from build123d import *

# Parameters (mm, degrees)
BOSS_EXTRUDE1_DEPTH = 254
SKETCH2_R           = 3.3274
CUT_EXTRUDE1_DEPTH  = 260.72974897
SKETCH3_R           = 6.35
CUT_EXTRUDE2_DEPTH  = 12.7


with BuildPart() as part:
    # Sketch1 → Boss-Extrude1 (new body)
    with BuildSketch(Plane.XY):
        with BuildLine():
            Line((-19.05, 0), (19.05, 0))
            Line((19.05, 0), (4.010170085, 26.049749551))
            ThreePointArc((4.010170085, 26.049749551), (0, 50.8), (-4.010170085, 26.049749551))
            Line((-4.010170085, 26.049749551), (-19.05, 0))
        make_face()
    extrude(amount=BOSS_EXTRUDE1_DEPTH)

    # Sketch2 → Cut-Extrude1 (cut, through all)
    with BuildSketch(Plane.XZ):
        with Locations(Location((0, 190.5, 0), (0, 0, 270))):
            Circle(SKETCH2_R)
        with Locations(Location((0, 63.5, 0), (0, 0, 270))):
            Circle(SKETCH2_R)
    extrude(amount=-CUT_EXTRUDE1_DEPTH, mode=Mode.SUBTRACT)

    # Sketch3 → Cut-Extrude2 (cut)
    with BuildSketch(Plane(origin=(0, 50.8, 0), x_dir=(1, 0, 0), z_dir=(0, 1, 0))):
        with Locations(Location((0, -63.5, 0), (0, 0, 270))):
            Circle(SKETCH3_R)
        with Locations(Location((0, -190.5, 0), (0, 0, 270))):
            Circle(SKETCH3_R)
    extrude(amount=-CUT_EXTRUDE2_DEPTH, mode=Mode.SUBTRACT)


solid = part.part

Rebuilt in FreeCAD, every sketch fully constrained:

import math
import FreeCAD as App
import Part
import Sketcher
Q = App.Units.Quantity

doc = App.newDocument("Part")
body = doc.addObject("PartDesign::Body", "Body")

# Sketch on XY plane
sketch1 = body.newObject("Sketcher::SketchObject", "Sketch")
sketch1.AttachmentSupport = (doc.getObject("XY_Plane"), [""])
sketch1.MapMode = "FlatFace"
sketch1.addGeometry(Part.LineSegment(App.Vector(-19.05, 0, 0), App.Vector(19.05, 0, 0)), False)
sketch1.addGeometry(Part.LineSegment(App.Vector(19.05, 0, 0), App.Vector(4.01017, 26.04975, 0)), False)
sketch1.addGeometry(Part.ArcOfCircle(Part.Circle(App.Vector(0, 38.1, 0), App.Vector(0, 0, 1), 12.7), math.radians(-71.593214), math.radians(251.593214)), False)
sketch1.addGeometry(Part.LineSegment(App.Vector(-4.01017, 26.04975, 0), App.Vector(-19.05, 0, 0)), False)
sketch1.addConstraint(Sketcher.Constraint("Coincident", 0, 2, 1, 1))
sketch1.addConstraint(Sketcher.Constraint("Coincident", 1, 2, 2, 1))
sketch1.addConstraint(Sketcher.Constraint("Coincident", 2, 2, 3, 1))
sketch1.addConstraint(Sketcher.Constraint("Coincident", 3, 2, 0, 1))
sketch1.addConstraint(Sketcher.Constraint("Horizontal", 0))
sketch1.addConstraint(Sketcher.Constraint("Symmetric", 0, 2, 3, 2, -1, 1))
sketch1.addConstraint(Sketcher.Constraint("Symmetric", 1, 2, 2, 2, -2))
sketch1.addConstraint(Sketcher.Constraint("Radius", 2, Q("0.5 in")))
sketch1.addConstraint(Sketcher.Constraint("DistanceX", 0, 1, 0, 2, Q("1.5 in")))
sketch1.addConstraint(Sketcher.Constraint("Angle", 1, Q("120 deg")))
sketch1.addConstraint(Sketcher.Constraint("DistanceY", -1, 1, 2, 3, Q("1.5 in")))
pad1 = body.newObject("PartDesign::Pad", "Pad")
pad1.Profile = sketch1
pad1.Length = Q("10 in")

# Sketch on XZ plane
sketch2 = body.newObject("Sketcher::SketchObject", "Sketch001")
sketch2.AttachmentSupport = (doc.getObject("XZ_Plane"), [""])
sketch2.MapMode = "FlatFace"
sketch2.addGeometry(Part.Circle(App.Vector(0, 190.5, 0), App.Vector(0, 0, 1), 3.3274), False)
sketch2.addGeometry(Part.Circle(App.Vector(0, 63.5, 0), App.Vector(0, 0, 1), 3.3274), False)
sketch2.addConstraint(Sketcher.Constraint("Equal", 0, 1))
sketch2.addConstraint(Sketcher.Constraint("PointOnObject", 0, 3, -2))
sketch2.addConstraint(Sketcher.Constraint("PointOnObject", 1, 3, -2))
sketch2.addConstraint(Sketcher.Constraint("Diameter", 0, Q("0.262 in")))
sketch2.addConstraint(Sketcher.Constraint("DistanceY", 1, 3, 0, 3, Q("5 in")))
sketch2.addConstraint(Sketcher.Constraint("DistanceY", -1, 1, 0, 3, Q("7.5 in")))
pocket1 = body.newObject("PartDesign::Pocket", "Pocket")
pocket1.Profile = sketch2
pocket1.Type = "ThroughAll"

# Sketch on XZ plane
sketch3 = body.newObject("Sketcher::SketchObject", "Sketch002")
sketch3.AttachmentSupport = (doc.getObject("XZ_Plane"), [""])
sketch3.MapMode = "FlatFace"
sketch3.AttachmentOffset = App.Placement(App.Vector(0, 0, -2 * 25.4), App.Rotation())
sketch3.addGeometry(Part.Circle(App.Vector(0, 63.5, 0), App.Vector(0, 0, 1), 6.35), False)
sketch3.addGeometry(Part.Circle(App.Vector(0, 190.5, 0), App.Vector(0, 0, 1), 6.35), False)
sketch3.addConstraint(Sketcher.Constraint("Equal", 0, 1))
sketch3.addConstraint(Sketcher.Constraint("PointOnObject", 0, 3, -2))
sketch3.addConstraint(Sketcher.Constraint("PointOnObject", 1, 3, -2))
sketch3.addConstraint(Sketcher.Constraint("Diameter", 0, Q("0.5 in")))
sketch3.addConstraint(Sketcher.Constraint("DistanceY", 0, 3, 1, 3, Q("5 in")))
sketch3.addConstraint(Sketcher.Constraint("DistanceY", -1, 1, 0, 3, Q("2.5 in")))
pocket2 = body.newObject("PartDesign::Pocket", "Pocket001")
pocket2.Profile = sketch3
pocket2.Length = Q("0.5 in")
pocket2.Reversed = True

doc.recompute()
